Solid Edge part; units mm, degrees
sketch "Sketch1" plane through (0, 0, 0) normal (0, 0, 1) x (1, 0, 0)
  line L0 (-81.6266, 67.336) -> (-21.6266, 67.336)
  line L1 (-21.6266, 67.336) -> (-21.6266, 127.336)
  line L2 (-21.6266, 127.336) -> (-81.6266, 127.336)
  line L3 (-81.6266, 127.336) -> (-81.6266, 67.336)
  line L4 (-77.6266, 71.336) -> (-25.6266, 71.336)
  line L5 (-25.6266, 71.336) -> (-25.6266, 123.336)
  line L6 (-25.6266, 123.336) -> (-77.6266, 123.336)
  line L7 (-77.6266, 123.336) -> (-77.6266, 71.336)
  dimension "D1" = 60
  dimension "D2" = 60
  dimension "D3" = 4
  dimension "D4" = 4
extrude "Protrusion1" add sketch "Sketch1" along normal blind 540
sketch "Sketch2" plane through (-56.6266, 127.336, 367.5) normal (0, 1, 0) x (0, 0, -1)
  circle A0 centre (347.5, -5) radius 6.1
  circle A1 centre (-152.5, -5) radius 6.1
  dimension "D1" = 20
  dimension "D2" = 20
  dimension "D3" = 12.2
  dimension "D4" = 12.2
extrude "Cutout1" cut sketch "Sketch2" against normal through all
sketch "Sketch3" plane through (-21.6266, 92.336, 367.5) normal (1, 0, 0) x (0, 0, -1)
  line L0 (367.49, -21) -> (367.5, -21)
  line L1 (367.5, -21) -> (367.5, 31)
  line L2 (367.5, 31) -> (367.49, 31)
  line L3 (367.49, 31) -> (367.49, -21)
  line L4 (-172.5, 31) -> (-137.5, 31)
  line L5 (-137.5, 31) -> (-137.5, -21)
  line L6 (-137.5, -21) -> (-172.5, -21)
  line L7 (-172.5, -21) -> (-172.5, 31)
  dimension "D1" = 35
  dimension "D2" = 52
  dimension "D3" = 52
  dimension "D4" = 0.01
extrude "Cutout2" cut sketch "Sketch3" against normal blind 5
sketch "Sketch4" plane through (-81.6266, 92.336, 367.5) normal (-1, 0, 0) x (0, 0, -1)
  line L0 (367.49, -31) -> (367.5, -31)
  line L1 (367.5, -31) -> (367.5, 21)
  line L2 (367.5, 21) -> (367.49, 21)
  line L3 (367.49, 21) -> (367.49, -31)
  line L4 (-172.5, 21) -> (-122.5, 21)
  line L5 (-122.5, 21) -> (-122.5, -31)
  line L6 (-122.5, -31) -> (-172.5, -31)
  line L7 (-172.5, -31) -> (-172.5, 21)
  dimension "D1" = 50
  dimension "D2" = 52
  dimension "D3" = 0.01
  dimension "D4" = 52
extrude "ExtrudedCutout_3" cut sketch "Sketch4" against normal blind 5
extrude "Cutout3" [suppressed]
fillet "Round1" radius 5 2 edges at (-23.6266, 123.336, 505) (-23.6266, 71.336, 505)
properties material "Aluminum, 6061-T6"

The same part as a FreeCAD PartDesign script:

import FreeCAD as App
import Part
import Sketcher
Q = App.Units.Quantity


def edges_at(feature, points):
    """Names of the edges that pass closest to the given points."""
    edges = feature.Shape.Edges
    near = lambda p: min(range(len(edges)), key=lambda i: edges[i].distToShape(Part.Vertex(*p))[0])
    return sorted({f"Edge{near(p) + 1}" for p in points})


def add_polygon(sketch, points):
    """Adds a closed chain of lines whose ends are joined by coincident constraints."""
    first, n = sketch.GeometryCount, len(points)
    for a, b in zip(points, points[1:] + points[:1]):
        sketch.addGeometry(Part.LineSegment(App.Vector(*a, 0), App.Vector(*b, 0)), False)
    for i in range(n):
        sketch.addConstraint(Sketcher.Constraint("Coincident", first + i, 2, first + (i + 1) % n, 1))

doc = App.newDocument("Part")
body = doc.addObject("PartDesign::Body", "Body")

# Sketch on XY plane
sketch1 = body.newObject("Sketcher::SketchObject", "Sketch")
sketch1.AttachmentSupport = (doc.getObject("XY_Plane"), [""])
sketch1.MapMode = "FlatFace"
add_polygon(sketch1, [(-82, 127), (-82, 67), (-22, 67), (-22, 127)])  # lines 0-3
add_polygon(sketch1, [(-26, 71), (-78, 71), (-78, 123), (-26, 123)])  # lines 4-7
sketch1.addConstraint([
    Sketcher.Constraint("Vertical", 0),
    Sketcher.Constraint("Horizontal", 1),
    Sketcher.Constraint("Vertical", 2),
    Sketcher.Constraint("Horizontal", 3),
    Sketcher.Constraint("Horizontal", 4),
    Sketcher.Constraint("Vertical", 5),
    Sketcher.Constraint("Horizontal", 6),
    Sketcher.Constraint("Vertical", 7),
    Sketcher.Constraint("Equal", 3, 0),
    Sketcher.Constraint("Equal", 6, 5),
    Sketcher.Constraint("DistanceX", 1, 1, 1, 2, Q("60 mm")),
    Sketcher.Constraint("DistanceX", 4, 2, 4, 1, Q("52 mm")),
    Sketcher.Constraint("DistanceX", 0, 2, 4, 2, Q("4 mm")),
    Sketcher.Constraint("DistanceY", 0, 2, 4, 2, Q("4 mm")),
    Sketcher.Constraint("DistanceX", 0, 2, -1, 1, Q("81.6266 mm")),
    Sketcher.Constraint("DistanceY", -1, 1, 0, 2, Q("67.336 mm")),
])
pad1 = body.newObject("PartDesign::Pad", "Pad")
pad1.Profile = sketch1
pad1.Length = 540

# Sketch on XZ plane
sketch2 = body.newObject("Sketcher::SketchObject", "Sketch001")
sketch2.AttachmentSupport = (doc.getObject("XZ_Plane"), [""])
sketch2.MapMode = "FlatFace"
sketch2.AttachmentOffset = App.Placement(App.Vector(0, 0, -127.336), App.Rotation())
sketch2.addGeometry([
    Part.Circle(App.Vector(-52, 20, 0), App.Vector(0, 0, 1), 6),
    Part.Circle(App.Vector(-52, 520, 0), App.Vector(0, 0, 1), 6),
], False)
sketch2.addConstraint([
    Sketcher.Constraint("Equal", 0, 1),
    Sketcher.Constraint("Vertical", 0, 3, 1, 3),
    Sketcher.Constraint("Diameter", 0, Q("12.2 mm")),
    Sketcher.Constraint("DistanceY", -1, 1, 0, 3, Q("20 mm")),
    Sketcher.Constraint("DistanceY", -1, 1, 1, 3, Q("520 mm")),
    Sketcher.Constraint("DistanceX", 0, 3, -1, 1, Q("51.6266 mm")),
])
pocket1 = body.newObject("PartDesign::Pocket", "Pocket")
pocket1.Profile = sketch2
pocket1.Type = "ThroughAll"
pocket1.Reversed = True

# Sketch on YZ plane
sketch3 = body.newObject("Sketcher::SketchObject", "Sketch002")
sketch3.AttachmentSupport = (doc.getObject("YZ_Plane"), [""])
sketch3.MapMode = "FlatFace"
sketch3.AttachmentOffset = App.Placement(App.Vector(0, 0, -21.6266), App.Rotation())
add_polygon(sketch3, [(123.336, 0.01), (71.336, 0.01), (71.336, 0), (123.336, 0)])  # lines 0-3
add_polygon(sketch3, [(123.336, 505), (123.336, 540), (71.336, 540), (71.336, 505)])  # lines 4-7
sketch3.addConstraint([
    Sketcher.Constraint("Horizontal", 0),
    Sketcher.Constraint("Vertical", 1),
    Sketcher.Constraint("Horizontal", 2),
    Sketcher.Constraint("Vertical", 3),
    Sketcher.Constraint("Vertical", 4),
    Sketcher.Constraint("Horizontal", 5),
    Sketcher.Constraint("Vertical", 6),
    Sketcher.Constraint("Horizontal", 7),
    Sketcher.Constraint("PointOnObject", 1, 2, -1),
    Sketcher.Constraint("Vertical", 3, 2, 4, 2),
    Sketcher.Constraint("Vertical", 1, 2, 5, 2),
    Sketcher.Constraint("DistanceX", 0, 2, 0, 1, Q("52 mm")),
    Sketcher.Constraint("DistanceY", 4, 1, 4, 2, Q("35 mm")),
    Sketcher.Constraint("DistanceY", -1, 1, 4, 2, Q("540 mm")),
    Sketcher.Constraint("DistanceY", 1, 2, 1, 1, Q("0.01 mm")),
    Sketcher.Constraint("DistanceX", -1, 1, 0, 2, Q("71.336 mm")),
])
pocket2 = body.newObject("PartDesign::Pocket", "Pocket001")
pocket2.Profile = sketch3
pocket2.Length = 5

# Sketch on YZ plane
sketch4 = body.newObject("Sketcher::SketchObject", "Sketch003")
sketch4.AttachmentSupport = (doc.getObject("YZ_Plane"), [""])
sketch4.MapMode = "FlatFace"
sketch4.AttachmentOffset = App.Placement(App.Vector(0, 0, -81.6266), App.Rotation())
add_polygon(sketch4, [(71.336, 0.01), (123.336, 0.01), (123.336, 0), (71.336, 0)])  # lines 0-3
add_polygon(sketch4, [(71.336, 490), (71.336, 540), (123.336, 540), (123.336, 490)])  # lines 4-7
sketch4.addConstraint([
    Sketcher.Constraint("Horizontal", 0),
    Sketcher.Constraint("Vertical", 1),
    Sketcher.Constraint("Horizontal", 2),
    Sketcher.Constraint("Vertical", 3),
    Sketcher.Constraint("Vertical", 4),
    Sketcher.Constraint("Horizontal", 5),
    Sketcher.Constraint("Vertical", 6),
    Sketcher.Constraint("Horizontal", 7),
    Sketcher.Constraint("PointOnObject", 1, 2, -1),
    Sketcher.Constraint("Vertical", 3, 2, 4, 2),
    Sketcher.Constraint("Vertical", 1, 2, 5, 2),
    Sketcher.Constraint("DistanceX", 0, 1, 0, 2, Q("52 mm")),
    Sketcher.Constraint("DistanceY", 4, 1, 4, 2, Q("50 mm")),
    Sketcher.Constraint("DistanceY", -1, 1, 4, 2, Q("540 mm")),
    Sketcher.Constraint("DistanceY", 1, 2, 1, 1, Q("0.01 mm")),
    Sketcher.Constraint("DistanceX", -1, 1, 0, 2, Q("123.336 mm")),
])
pocket3 = body.newObject("PartDesign::Pocket", "Pocket002")
pocket3.Profile = sketch4
pocket3.Length = 5
pocket3.Reversed = True
doc.recompute()

fillet = body.newObject("PartDesign::Fillet", "Fillet")
fillet.Base = (pocket3, edges_at(pocket3, [(-23.627, 123.336, 505), (-23.627, 71.336, 505)]))
fillet.Radius = 5

doc.recompute()
